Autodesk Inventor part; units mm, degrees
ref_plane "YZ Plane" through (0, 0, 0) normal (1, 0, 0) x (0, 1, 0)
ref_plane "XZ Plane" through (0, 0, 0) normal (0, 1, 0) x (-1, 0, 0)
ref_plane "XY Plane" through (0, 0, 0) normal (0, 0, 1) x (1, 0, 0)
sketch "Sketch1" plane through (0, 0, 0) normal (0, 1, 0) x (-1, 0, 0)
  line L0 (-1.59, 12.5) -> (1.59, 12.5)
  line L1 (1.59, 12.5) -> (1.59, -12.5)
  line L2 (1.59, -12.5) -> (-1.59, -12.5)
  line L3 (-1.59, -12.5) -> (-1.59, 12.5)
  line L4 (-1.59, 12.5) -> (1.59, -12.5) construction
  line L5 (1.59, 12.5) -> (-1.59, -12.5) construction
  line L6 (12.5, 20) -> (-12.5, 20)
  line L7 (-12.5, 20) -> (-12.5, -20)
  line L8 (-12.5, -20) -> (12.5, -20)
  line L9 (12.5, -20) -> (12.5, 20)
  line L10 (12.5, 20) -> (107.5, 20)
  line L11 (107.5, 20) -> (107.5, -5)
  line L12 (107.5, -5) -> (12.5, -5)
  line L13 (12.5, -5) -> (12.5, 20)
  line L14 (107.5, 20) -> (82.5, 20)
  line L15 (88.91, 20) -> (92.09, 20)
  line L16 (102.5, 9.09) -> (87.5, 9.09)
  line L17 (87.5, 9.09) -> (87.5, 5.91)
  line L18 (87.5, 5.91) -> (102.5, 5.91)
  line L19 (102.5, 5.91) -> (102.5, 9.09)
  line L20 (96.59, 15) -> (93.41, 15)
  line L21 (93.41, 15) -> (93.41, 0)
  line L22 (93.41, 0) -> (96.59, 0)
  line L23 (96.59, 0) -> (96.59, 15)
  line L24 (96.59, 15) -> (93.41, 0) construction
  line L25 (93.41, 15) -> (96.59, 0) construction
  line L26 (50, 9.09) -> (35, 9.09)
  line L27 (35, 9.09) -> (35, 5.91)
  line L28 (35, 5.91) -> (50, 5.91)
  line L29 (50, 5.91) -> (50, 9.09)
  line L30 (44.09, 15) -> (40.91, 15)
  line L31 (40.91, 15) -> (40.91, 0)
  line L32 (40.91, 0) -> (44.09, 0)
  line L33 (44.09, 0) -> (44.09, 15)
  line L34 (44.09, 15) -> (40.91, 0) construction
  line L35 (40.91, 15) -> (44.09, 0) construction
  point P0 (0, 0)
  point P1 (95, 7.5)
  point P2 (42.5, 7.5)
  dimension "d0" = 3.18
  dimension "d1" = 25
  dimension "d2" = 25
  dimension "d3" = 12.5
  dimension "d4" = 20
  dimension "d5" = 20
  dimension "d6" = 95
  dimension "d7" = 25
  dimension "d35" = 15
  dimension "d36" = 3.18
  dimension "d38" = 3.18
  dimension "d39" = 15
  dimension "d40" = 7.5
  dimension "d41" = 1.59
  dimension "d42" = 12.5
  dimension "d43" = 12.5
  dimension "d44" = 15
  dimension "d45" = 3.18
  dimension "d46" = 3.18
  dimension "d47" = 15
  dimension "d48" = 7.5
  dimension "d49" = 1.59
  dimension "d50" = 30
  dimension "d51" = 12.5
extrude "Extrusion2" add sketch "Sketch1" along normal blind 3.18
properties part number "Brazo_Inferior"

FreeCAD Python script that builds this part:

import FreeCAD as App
import Part
import Sketcher

doc = App.newDocument("Part")
body = doc.addObject("PartDesign::Body", "Body")

# Sketch on XZ plane
sketch1 = body.newObject("Sketcher::SketchObject", "Sketch")
sketch1.AttachmentSupport = (doc.getObject("XZ_Plane"), [""])
sketch1.MapMode = "FlatFace"
sketch1.addGeometry([
    Part.LineSegment(App.Vector(-12.5, -20, 0), App.Vector(-12.5, -5, 0)),  # 0
    Part.LineSegment(App.Vector(-12.5, -5, 0), App.Vector(-107.5, -5, 0)),  # 1
    Part.LineSegment(App.Vector(-107.5, -5, 0), App.Vector(-107.5, 20, 0)),  # 2
    Part.LineSegment(App.Vector(-107.5, 20, 0), App.Vector(12.5, 20, 0)),  # 3
    Part.LineSegment(App.Vector(12.5, 20, 0), App.Vector(12.5, -20, 0)),  # 4
    Part.LineSegment(App.Vector(12.5, -20, 0), App.Vector(-12.5, -20, 0)),  # 5
    Part.LineSegment(App.Vector(1.6, -12.5, 0), App.Vector(1.6, 12.5, 0)),  # 6
    Part.LineSegment(App.Vector(1.6, 12.5, 0), App.Vector(-1.6, 12.5, 0)),  # 7
    Part.LineSegment(App.Vector(-1.6, 12.5, 0), App.Vector(-1.6, -12.5, 0)),  # 8
    Part.LineSegment(App.Vector(-1.6, -12.5, 0), App.Vector(1.6, -12.5, 0)),  # 9
    Part.LineSegment(App.Vector(-102.5, 9.1, 0), App.Vector(-102.5, 5.9, 0)),  # 10
    Part.LineSegment(App.Vector(-102.5, 5.9, 0), App.Vector(-96.6, 5.9, 0)),  # 11
    Part.LineSegment(App.Vector(-96.6, 5.9, 0), App.Vector(-96.6, 0, 0)),  # 12
    Part.LineSegment(App.Vector(-96.6, 0, 0), App.Vector(-93.4, 0, 0)),  # 13
    Part.LineSegment(App.Vector(-93.4, 0, 0), App.Vector(-93.4, 5.9, 0)),  # 14
    Part.LineSegment(App.Vector(-93.4, 5.9, 0), App.Vector(-87.5, 5.9, 0)),  # 15
    Part.LineSegment(App.Vector(-87.5, 5.9, 0), App.Vector(-87.5, 9.1, 0)),  # 16
    Part.LineSegment(App.Vector(-87.5, 9.1, 0), App.Vector(-93.4, 9.1, 0)),  # 17
    Part.LineSegment(App.Vector(-93.4, 9.1, 0), App.Vector(-93.4, 15, 0)),  # 18
    Part.LineSegment(App.Vector(-93.4, 15, 0), App.Vector(-96.6, 15, 0)),  # 19
    Part.LineSegment(App.Vector(-96.6, 15, 0), App.Vector(-96.6, 9.1, 0)),  # 20
    Part.LineSegment(App.Vector(-96.6, 9.1, 0), App.Vector(-102.5, 9.1, 0)),  # 21
    Part.LineSegment(App.Vector(-44.1, 9.1, 0), App.Vector(-50, 9.1, 0)),  # 22
    Part.LineSegment(App.Vector(-50, 9.1, 0), App.Vector(-50, 5.9, 0)),  # 23
    Part.LineSegment(App.Vector(-50, 5.9, 0), App.Vector(-44.1, 5.9, 0)),  # 24
    Part.LineSegment(App.Vector(-44.1, 5.9, 0), App.Vector(-44.1, 0, 0)),  # 25
    Part.LineSegment(App.Vector(-44.1, 0, 0), App.Vector(-40.9, 0, 0)),  # 26
    Part.LineSegment(App.Vector(-40.9, 0, 0), App.Vector(-40.9, 5.9, 0)),  # 27
    Part.LineSegment(App.Vector(-40.9, 5.9, 0), App.Vector(-35, 5.9, 0)),  # 28
    Part.LineSegment(App.Vector(-35, 5.9, 0), App.Vector(-35, 9.1, 0)),  # 29
    Part.LineSegment(App.Vector(-35, 9.1, 0), App.Vector(-40.9, 9.1, 0)),  # 30
    Part.LineSegment(App.Vector(-40.9, 9.1, 0), App.Vector(-40.9, 15, 0)),  # 31
    Part.LineSegment(App.Vector(-40.9, 15, 0), App.Vector(-44.1, 15, 0)),  # 32
    Part.LineSegment(App.Vector(-44.1, 15, 0), App.Vector(-44.1, 9.1, 0)),  # 33
], False)
sketch1.addConstraint([
    Sketcher.Constraint("Coincident", 0, 2, 1, 1),
    Sketcher.Constraint("Coincident", 1, 2, 2, 1),
    Sketcher.Constraint("Coincident", 2, 2, 3, 1),
    Sketcher.Constraint("Coincident", 3, 2, 4, 1),
    Sketcher.Constraint("Coincident", 4, 2, 5, 1),
    Sketcher.Constraint("Coincident", 5, 2, 0, 1),
    Sketcher.Constraint("Coincident", 6, 2, 7, 1),
    Sketcher.Constraint("Coincident", 7, 2, 8, 1),
    Sketcher.Constraint("Coincident", 8, 2, 9, 1),
    Sketcher.Constraint("Coincident", 9, 2, 6, 1),
    Sketcher.Constraint("Coincident", 10, 2, 11, 1),
    Sketcher.Constraint("Coincident", 11, 2, 12, 1),
    Sketcher.Constraint("Coincident", 12, 2, 13, 1),
    Sketcher.Constraint("Coincident", 13, 2, 14, 1),
    Sketcher.Constraint("Coincident", 14, 2, 15, 1),
    Sketcher.Constraint("Coincident", 15, 2, 16, 1),
    Sketcher.Constraint("Coincident", 16, 2, 17, 1),
    Sketcher.Constraint("Coincident", 17, 2, 18, 1),
    Sketcher.Constraint("Coincident", 18, 2, 19, 1),
    Sketcher.Constraint("Coincident", 19, 2, 20, 1),
    Sketcher.Constraint("Coincident", 20, 2, 21, 1),
    Sketcher.Constraint("Coincident", 21, 2, 10, 1),
    Sketcher.Constraint("Coincident", 22, 2, 23, 1),
    Sketcher.Constraint("Coincident", 23, 2, 24, 1),
    Sketcher.Constraint("Coincident", 24, 2, 25, 1),
    Sketcher.Constraint("Coincident", 25, 2, 26, 1),
    Sketcher.Constraint("Coincident", 26, 2, 27, 1),
    Sketcher.Constraint("Coincident", 27, 2, 28, 1),
    Sketcher.Constraint("Coincident", 28, 2, 29, 1),
    Sketcher.Constraint("Coincident", 29, 2, 30, 1),
    Sketcher.Constraint("Coincident", 30, 2, 31, 1),
    Sketcher.Constraint("Coincident", 31, 2, 32, 1),
    Sketcher.Constraint("Coincident", 32, 2, 33, 1),
    Sketcher.Constraint("Coincident", 33, 2, 22, 1),
    Sketcher.Constraint("Vertical", 0),
    Sketcher.Constraint("Horizontal", 1),
    Sketcher.Constraint("Vertical", 2),
    Sketcher.Constraint("Horizontal", 3),
    Sketcher.Constraint("Vertical", 4),
    Sketcher.Constraint("Horizontal", 5),
    Sketcher.Constraint("Vertical", 6),
    Sketcher.Constraint("Horizontal", 7),
    Sketcher.Constraint("Vertical", 8),
    Sketcher.Constraint("Horizontal", 9),
    Sketcher.Constraint("Vertical", 10),
    Sketcher.Constraint("Horizontal", 11),
    Sketcher.Constraint("Vertical", 12),
    Sketcher.Constraint("Horizontal", 13),
    Sketcher.Constraint("Vertical", 14),
    Sketcher.Constraint("Horizontal", 15),
    Sketcher.Constraint("Vertical", 16),
    Sketcher.Constraint("Horizontal", 17),
    Sketcher.Constraint("Vertical", 18),
    Sketcher.Constraint("Horizontal", 19),
    Sketcher.Constraint("Vertical", 20),
    Sketcher.Constraint("Horizontal", 21),
    Sketcher.Constraint("Horizontal", 22),
    Sketcher.Constraint("Vertical", 23),
    Sketcher.Constraint("Horizontal", 24),
    Sketcher.Constraint("Vertical", 25),
    Sketcher.Constraint("Horizontal", 26),
    Sketcher.Constraint("Vertical", 27),
    Sketcher.Constraint("Horizontal", 28),
    Sketcher.Constraint("Vertical", 29),
    Sketcher.Constraint("Horizontal", 30),
    Sketcher.Constraint("Vertical", 31),
    Sketcher.Constraint("Horizontal", 32),
    Sketcher.Constraint("Vertical", 33),
    Sketcher.Constraint("Symmetric", 3, 2, 5, 2, -1, 1),
    Sketcher.Constraint("Symmetric", 6, 2, 8, 2, -1, 1),
    Sketcher.Constraint("PointOnObject", 12, 2, -1),
    Sketcher.Constraint("PointOnObject", 25, 2, -1),
    Sketcher.Constraint("Horizontal", 11, 2, 14, 2),
    Sketcher.Constraint("Horizontal", 17, 2, 20, 2),
    Sketcher.Constraint("Horizontal", 21, 2, 22, 2),
    Sketcher.Constraint("Horizontal", 15, 2, 23, 2),
    Sketcher.Constraint("Horizontal", 24, 2, 27, 2),
    Sketcher.Constraint("Horizontal", 22, 2, 29, 2),
    Sketcher.Constraint("Horizontal", 19, 2, 31, 2),
    Sketcher.Constraint("Vertical", 14, 2, 17, 2),
    Sketcher.Constraint("Vertical", 12, 2, 19, 2),
    Sketcher.Constraint("Vertical", 27, 2, 30, 2),
    Sketcher.Constraint("Vertical", 25, 2, 32, 2),
    Sketcher.Constraint("Equal", 9, 13),
    Sketcher.Constraint("Equal", 11, 15),
    Sketcher.Constraint("Equal", 21, 22),
    Sketcher.Constraint("Equal", 19, 26),
    Sketcher.Constraint("Equal", 24, 28),
    Sketcher.Constraint("Equal", 5, 2),
    Sketcher.Constraint("Equal", 2, 6),
    Sketcher.Constraint("Equal", 32, 10),
    Sketcher.Constraint("Equal", 30, 12),
    Sketcher.Constraint("Equal", 14, 18),
    Sketcher.Constraint("DistanceX", 1, 2, 1, 1, 95.0),
    Sketcher.Constraint("DistanceX", 5, 2, 5, 1, 25.0),
    Sketcher.Constraint("DistanceY", 0, 1, 0, 2, 15.0),
    Sketcher.Constraint("DistanceY", -1, 1, 18, 2, 15.0),
    Sketcher.Constraint("DistanceX", 7, 2, 7, 1, 3.18),
    Sketcher.Constraint("DistanceX", 22, 2, -1, 1, 50.0),
    Sketcher.Constraint("DistanceX", 1, 2, 10, 2, 5.0),
])
pad1 = body.newObject("PartDesign::Pad", "Pad")
pad1.Profile = sketch1
pad1.Length = 3.18
pad1.Reversed = True

doc.recompute()
